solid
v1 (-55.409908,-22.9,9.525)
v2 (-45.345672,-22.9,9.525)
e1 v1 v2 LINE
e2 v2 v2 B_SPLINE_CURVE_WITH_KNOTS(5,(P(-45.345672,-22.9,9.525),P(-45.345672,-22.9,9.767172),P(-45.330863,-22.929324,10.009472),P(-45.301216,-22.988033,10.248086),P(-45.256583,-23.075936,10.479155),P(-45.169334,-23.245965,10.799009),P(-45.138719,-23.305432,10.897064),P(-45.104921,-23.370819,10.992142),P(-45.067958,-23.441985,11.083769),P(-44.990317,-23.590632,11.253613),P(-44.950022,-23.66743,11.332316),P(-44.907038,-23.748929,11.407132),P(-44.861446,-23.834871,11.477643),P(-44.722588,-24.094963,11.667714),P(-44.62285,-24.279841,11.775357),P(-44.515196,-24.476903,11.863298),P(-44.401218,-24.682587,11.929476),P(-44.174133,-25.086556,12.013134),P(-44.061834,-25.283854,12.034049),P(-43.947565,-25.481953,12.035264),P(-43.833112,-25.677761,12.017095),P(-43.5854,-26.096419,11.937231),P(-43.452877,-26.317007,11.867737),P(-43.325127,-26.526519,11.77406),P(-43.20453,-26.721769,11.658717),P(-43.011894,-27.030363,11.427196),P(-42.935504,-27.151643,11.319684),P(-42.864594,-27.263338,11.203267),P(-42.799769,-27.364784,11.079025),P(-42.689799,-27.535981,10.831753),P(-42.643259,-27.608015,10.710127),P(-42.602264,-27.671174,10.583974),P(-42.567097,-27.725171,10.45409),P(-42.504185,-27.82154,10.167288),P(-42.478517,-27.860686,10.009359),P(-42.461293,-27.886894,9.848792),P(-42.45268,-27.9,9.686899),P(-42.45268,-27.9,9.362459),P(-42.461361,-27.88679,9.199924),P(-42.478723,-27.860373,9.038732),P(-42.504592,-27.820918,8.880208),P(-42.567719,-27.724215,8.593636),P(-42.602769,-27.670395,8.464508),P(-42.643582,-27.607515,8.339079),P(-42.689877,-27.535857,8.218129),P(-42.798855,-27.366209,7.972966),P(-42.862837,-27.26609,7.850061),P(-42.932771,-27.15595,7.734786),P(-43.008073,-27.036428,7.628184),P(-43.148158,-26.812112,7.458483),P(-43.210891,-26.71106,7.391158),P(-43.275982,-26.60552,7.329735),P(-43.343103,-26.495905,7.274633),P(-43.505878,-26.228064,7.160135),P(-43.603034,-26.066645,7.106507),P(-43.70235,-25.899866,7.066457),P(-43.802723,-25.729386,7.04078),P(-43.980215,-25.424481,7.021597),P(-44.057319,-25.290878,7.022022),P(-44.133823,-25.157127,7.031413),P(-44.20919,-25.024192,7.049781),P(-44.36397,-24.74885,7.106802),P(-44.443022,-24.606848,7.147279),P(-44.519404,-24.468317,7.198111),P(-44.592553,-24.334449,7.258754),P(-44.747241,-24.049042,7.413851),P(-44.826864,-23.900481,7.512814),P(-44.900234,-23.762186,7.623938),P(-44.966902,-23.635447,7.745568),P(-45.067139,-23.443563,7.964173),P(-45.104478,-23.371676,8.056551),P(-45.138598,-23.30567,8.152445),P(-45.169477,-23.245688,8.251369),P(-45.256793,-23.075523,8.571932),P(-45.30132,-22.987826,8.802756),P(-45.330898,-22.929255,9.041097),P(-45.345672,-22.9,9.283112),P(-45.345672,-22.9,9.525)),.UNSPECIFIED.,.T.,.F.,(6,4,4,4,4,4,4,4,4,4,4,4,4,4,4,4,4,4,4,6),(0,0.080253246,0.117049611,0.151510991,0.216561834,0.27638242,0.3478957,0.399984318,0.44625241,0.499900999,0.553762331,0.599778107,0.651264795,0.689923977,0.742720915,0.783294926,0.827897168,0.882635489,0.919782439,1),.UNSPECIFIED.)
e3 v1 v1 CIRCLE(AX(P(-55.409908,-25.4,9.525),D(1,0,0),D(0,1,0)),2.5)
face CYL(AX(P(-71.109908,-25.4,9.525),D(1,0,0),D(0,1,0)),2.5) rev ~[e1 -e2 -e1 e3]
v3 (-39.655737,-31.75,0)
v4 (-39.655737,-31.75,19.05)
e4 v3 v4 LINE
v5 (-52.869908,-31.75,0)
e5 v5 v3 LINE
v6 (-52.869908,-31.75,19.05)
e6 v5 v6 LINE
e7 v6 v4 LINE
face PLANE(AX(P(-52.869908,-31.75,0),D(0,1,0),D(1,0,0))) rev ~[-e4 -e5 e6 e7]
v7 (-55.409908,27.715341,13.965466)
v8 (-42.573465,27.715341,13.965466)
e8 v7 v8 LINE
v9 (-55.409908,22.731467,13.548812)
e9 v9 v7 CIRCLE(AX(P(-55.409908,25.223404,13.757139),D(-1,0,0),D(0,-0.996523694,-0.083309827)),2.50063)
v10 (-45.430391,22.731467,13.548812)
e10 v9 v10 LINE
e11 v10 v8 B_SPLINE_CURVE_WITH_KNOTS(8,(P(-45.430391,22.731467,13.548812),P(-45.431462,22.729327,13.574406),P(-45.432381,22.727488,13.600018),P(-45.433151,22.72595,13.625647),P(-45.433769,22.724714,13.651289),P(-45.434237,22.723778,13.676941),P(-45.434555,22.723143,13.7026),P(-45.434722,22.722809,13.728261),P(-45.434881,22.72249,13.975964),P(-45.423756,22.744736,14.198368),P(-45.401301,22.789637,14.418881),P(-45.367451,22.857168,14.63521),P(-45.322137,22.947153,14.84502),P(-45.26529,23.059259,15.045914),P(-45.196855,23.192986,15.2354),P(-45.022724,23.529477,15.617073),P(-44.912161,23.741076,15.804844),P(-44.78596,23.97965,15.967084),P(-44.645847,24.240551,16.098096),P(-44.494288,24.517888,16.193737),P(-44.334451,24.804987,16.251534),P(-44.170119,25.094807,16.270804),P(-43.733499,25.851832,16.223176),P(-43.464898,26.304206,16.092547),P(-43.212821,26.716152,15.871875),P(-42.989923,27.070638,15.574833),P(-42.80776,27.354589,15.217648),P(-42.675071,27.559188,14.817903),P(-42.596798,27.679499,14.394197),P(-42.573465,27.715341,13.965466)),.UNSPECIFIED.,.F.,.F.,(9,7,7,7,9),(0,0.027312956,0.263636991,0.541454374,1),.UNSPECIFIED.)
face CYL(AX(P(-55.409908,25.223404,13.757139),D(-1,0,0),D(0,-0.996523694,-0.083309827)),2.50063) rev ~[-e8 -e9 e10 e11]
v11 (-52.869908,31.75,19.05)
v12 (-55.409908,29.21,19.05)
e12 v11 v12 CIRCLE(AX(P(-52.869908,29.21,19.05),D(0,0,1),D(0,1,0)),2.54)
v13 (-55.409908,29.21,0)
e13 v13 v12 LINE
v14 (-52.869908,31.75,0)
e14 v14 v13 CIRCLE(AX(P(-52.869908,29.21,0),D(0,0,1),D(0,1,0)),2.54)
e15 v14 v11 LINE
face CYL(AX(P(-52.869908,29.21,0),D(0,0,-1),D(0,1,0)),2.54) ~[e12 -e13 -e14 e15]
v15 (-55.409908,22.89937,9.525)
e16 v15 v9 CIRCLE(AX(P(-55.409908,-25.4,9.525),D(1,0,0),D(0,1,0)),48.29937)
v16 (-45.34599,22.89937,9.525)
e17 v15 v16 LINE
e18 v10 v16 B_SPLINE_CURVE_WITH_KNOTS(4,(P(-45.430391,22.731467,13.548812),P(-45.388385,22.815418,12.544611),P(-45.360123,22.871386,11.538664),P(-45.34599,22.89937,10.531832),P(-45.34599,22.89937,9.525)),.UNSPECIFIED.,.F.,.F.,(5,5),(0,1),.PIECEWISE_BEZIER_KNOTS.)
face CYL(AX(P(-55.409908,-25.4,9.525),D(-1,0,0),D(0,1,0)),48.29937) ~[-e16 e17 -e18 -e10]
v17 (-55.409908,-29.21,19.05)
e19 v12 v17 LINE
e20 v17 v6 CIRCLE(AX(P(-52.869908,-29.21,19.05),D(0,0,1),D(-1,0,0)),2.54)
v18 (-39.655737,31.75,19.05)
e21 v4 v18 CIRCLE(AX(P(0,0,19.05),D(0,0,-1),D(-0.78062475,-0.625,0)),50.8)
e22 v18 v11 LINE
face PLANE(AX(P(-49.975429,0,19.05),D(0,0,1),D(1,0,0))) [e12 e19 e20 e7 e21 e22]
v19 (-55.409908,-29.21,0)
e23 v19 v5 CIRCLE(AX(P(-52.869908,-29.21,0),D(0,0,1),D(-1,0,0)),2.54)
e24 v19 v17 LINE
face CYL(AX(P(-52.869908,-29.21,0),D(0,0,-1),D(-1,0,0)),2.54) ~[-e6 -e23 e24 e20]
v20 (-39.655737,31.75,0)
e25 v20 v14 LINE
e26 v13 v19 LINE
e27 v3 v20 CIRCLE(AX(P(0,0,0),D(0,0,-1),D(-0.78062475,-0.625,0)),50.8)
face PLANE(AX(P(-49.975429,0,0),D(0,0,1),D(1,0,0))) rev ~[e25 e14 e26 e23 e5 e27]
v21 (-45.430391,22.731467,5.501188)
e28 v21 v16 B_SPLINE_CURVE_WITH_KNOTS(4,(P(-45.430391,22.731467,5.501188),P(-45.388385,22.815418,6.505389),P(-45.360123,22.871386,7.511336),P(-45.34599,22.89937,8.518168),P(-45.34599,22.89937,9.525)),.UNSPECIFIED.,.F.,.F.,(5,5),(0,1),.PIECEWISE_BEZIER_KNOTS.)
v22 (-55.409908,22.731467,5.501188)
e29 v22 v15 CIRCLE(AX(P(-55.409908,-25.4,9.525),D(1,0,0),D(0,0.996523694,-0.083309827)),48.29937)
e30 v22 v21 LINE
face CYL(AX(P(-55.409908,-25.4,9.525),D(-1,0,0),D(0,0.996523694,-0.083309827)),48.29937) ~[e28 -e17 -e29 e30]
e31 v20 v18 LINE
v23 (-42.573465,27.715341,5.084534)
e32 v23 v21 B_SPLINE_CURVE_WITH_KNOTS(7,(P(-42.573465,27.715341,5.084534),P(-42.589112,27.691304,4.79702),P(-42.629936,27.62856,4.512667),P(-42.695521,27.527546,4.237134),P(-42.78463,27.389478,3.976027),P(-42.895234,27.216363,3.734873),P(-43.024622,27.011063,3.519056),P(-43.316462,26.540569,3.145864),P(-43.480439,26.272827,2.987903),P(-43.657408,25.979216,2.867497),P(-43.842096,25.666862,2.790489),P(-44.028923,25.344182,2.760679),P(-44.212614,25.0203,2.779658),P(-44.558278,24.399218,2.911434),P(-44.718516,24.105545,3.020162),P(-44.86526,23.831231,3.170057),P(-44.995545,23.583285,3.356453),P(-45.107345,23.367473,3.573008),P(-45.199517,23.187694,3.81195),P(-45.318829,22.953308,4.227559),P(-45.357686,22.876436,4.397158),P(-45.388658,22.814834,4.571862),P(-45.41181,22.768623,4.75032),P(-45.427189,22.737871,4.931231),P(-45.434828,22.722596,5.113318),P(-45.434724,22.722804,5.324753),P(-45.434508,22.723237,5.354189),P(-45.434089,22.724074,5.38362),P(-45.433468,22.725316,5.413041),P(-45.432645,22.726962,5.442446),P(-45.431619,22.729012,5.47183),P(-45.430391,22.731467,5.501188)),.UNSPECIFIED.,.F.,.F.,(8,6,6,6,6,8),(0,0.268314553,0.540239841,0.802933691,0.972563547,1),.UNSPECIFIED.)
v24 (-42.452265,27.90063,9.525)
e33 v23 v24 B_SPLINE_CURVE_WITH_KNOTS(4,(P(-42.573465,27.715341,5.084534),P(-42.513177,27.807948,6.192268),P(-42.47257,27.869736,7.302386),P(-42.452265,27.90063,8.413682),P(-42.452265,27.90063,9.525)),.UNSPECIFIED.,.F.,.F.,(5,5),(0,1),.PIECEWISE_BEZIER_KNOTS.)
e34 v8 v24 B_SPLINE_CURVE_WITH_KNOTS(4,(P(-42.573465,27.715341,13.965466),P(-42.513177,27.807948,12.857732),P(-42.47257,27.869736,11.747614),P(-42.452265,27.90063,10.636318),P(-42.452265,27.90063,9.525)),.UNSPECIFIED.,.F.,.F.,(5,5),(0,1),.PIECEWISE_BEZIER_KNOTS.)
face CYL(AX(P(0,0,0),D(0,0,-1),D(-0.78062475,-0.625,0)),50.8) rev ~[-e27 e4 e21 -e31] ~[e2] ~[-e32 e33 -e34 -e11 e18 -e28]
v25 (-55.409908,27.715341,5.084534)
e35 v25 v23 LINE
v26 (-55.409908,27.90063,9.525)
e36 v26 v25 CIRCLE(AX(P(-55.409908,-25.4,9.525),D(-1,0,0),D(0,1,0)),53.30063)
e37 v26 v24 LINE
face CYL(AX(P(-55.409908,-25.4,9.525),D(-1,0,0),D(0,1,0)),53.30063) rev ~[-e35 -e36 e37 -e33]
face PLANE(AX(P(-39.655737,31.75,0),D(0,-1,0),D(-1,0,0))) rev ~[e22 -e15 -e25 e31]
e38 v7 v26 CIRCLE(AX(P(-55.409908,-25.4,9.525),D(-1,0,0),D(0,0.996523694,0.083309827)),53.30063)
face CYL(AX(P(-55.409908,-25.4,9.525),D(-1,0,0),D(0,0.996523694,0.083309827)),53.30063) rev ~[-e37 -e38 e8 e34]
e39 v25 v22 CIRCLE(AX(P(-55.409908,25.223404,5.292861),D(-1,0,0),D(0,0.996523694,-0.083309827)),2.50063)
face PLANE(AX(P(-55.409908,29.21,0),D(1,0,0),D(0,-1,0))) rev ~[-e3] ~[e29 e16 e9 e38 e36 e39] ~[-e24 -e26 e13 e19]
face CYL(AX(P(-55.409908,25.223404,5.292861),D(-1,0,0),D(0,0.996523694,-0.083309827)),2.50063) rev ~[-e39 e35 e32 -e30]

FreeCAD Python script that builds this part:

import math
import FreeCAD as App
import Part
import Sketcher
from FreeCAD import Vector
Q = App.Units.Quantity

doc = App.newDocument("Part")
body = doc.addObject("PartDesign::Body", "Body")

# Sketch on XY plane
sketch1 = body.newObject("Sketcher::SketchObject", "Sketch")
sketch1.AttachmentSupport = (doc.getObject("XY_Plane"), [""])
sketch1.MapMode = "FlatFace"
sketch1.addGeometry([
    Part.ArcOfCircle(Part.Circle(Vector(0, 0, 0), Vector(0, 0, 1), 50.8), math.radians(141), math.radians(219)),  # 0
    Part.LineSegment(Vector(-39.7, 31.8, 0), Vector(-52.9, 31.8, 0)),  # 1
    Part.ArcOfCircle(Part.Circle(Vector(-52.9, 29.2, 0), Vector(0, 0, 1), 2.5), math.radians(90), math.radians(180)),  # 2
    Part.LineSegment(Vector(-55.4, 29.2, 0), Vector(-55.4, -29.2, 0)),  # 3
    Part.ArcOfCircle(Part.Circle(Vector(-52.9, -29.2, 0), Vector(0, 0, 1), 2.5), math.radians(180), math.radians(270)),  # 4
    Part.LineSegment(Vector(-52.9, -31.8, 0), Vector(-39.7, -31.8, 0)),  # 5
], False)
sketch1.addConstraint([
    Sketcher.Constraint("Coincident", 0, 1, 1, 1),
    Sketcher.Constraint("Tangent", 1, 2, 2, 1),
    Sketcher.Constraint("Tangent", 2, 2, 3, 1),
    Sketcher.Constraint("Tangent", 3, 2, 4, 1),
    Sketcher.Constraint("Tangent", 4, 2, 5, 1),
    Sketcher.Constraint("Coincident", 5, 2, 0, 2),
    Sketcher.Constraint("Horizontal", 1),
    Sketcher.Constraint("Vertical", 3),
    Sketcher.Constraint("Horizontal", 5),
    Sketcher.Constraint("Coincident", 0, 3, -1, 1),
    Sketcher.Constraint("Equal", 2, 4),
    Sketcher.Constraint("Vertical", 0, 1, 5, 2),
    Sketcher.Constraint("Radius", 0, Q("2 in")),
    Sketcher.Constraint("Radius", 2, Q("0.1 in")),
    Sketcher.Constraint("DistanceY", 3, 2, 3, 1, Q("2.3 in")),
    Sketcher.Constraint("DistanceX", 1, 2, 1, 1, Q("13.214171 mm")),
])
pad1 = body.newObject("PartDesign::Pad", "Pad")
pad1.Profile = sketch1
pad1.Length = Q("0.75 in")

# Sketch on YZ plane
sketch2 = body.newObject("Sketcher::SketchObject", "Sketch001")
sketch2.AttachmentSupport = (doc.getObject("YZ_Plane"), [""])
sketch2.MapMode = "FlatFace"
sketch2.AttachmentOffset = App.Placement(Vector(0, 0, -55.409908), App.Rotation())
sketch2.addGeometry(Part.Circle(Vector(-25.4, 9.5, 0), Vector(0, 0, 1), 2.5), False)
sketch2.addConstraint([
    Sketcher.Constraint("DistanceX", 0, 3, -1, 1, Q("1 in")),
    Sketcher.Constraint("Diameter", 0, Q("5 mm")),
    Sketcher.Constraint("DistanceY", -1, 1, 0, 3, Q("0.375 in")),
])
doc.recompute()
hole = body.newObject("PartDesign::Hole", "Hole")
hole.Profile = sketch2
hole.ThreadType = "None"
hole.Diameter = 5
hole.DepthType = "Dimension"
hole.Depth = 15.7
hole.DrillPoint = "Angled"
hole.DrillPointAngle = 118
hole.Reversed = True

# Sketch on YZ plane
sketch3 = body.newObject("Sketcher::SketchObject", "Sketch002")
sketch3.AttachmentSupport = (doc.getObject("YZ_Plane"), [""])
sketch3.MapMode = "FlatFace"
sketch3.AttachmentOffset = App.Placement(Vector(0, 0, -55.409908), App.Rotation())
sketch3.addGeometry([
    Part.ArcOfCircle(Part.Circle(Vector(-25.4, 9.5, 0), Vector(0, 0, 1), 53.3), math.radians(0), math.radians(4.78)),  # 0
    Part.ArcOfCircle(Part.Circle(Vector(-25.4, 9.5, 0), Vector(0, 0, 1), 53.3), math.radians(-4.78), math.radians(0)),  # 1
    Part.ArcOfCircle(Part.Circle(Vector(25.2, 5.3, 0), Vector(0, 0, 1), 2.5), math.radians(175), math.radians(355)),  # 2
    Part.ArcOfCircle(Part.Circle(Vector(-25.4, 9.5, 0), Vector(0, 0, 1), 48.3), math.radians(-4.78), math.radians(0)),  # 3
    Part.ArcOfCircle(Part.Circle(Vector(-25.4, 9.5, 0), Vector(0, 0, 1), 48.3), math.radians(0), math.radians(4.78)),  # 4
    Part.ArcOfCircle(Part.Circle(Vector(25.2, 13.8, 0), Vector(0, 0, 1), 2.5), math.radians(5), math.radians(185)),  # 5
], False)
sketch3.addConstraint([
    Sketcher.Constraint("Tangent", 0, 1, 1, 2),
    Sketcher.Constraint("Tangent", 1, 1, 2, 2),
    Sketcher.Constraint("Tangent", 2, 1, 3, 1),
    Sketcher.Constraint("Tangent", 3, 2, 4, 1),
    Sketcher.Constraint("Tangent", 4, 2, 5, 2),
    Sketcher.Constraint("Tangent", 5, 1, 0, 2),
    Sketcher.Constraint("Coincident", 3, 3, 0, 3),
    Sketcher.Constraint("Equal", 0, 1),
    Sketcher.Constraint("Equal", 3, 4),
    Sketcher.Constraint("Horizontal", 4, 3, 0, 1),
    Sketcher.Constraint("Horizontal", 0, 1, 3, 2),
    Sketcher.Constraint("Vertical", 2, 3, 5, 3),
    Sketcher.Constraint("DistanceX", 0, 3, -1, 1, Q("1 in")),
    Sketcher.Constraint("DistanceY", -1, 1, 0, 3, Q("0.375 in")),
    Sketcher.Constraint("Radius", 0, Q("53.30063 mm")),
    Sketcher.Constraint("Radius", 2, Q("2.50063 mm")),
    Sketcher.Constraint("DistanceY", -1, 1, 2, 3, Q("5.292861 mm")),
])
pocket1 = body.newObject("PartDesign::Pocket", "Pocket")
pocket1.Profile = sketch3
pocket1.Length = Q("1 in")
pocket1.Reversed = True

doc.recompute()
